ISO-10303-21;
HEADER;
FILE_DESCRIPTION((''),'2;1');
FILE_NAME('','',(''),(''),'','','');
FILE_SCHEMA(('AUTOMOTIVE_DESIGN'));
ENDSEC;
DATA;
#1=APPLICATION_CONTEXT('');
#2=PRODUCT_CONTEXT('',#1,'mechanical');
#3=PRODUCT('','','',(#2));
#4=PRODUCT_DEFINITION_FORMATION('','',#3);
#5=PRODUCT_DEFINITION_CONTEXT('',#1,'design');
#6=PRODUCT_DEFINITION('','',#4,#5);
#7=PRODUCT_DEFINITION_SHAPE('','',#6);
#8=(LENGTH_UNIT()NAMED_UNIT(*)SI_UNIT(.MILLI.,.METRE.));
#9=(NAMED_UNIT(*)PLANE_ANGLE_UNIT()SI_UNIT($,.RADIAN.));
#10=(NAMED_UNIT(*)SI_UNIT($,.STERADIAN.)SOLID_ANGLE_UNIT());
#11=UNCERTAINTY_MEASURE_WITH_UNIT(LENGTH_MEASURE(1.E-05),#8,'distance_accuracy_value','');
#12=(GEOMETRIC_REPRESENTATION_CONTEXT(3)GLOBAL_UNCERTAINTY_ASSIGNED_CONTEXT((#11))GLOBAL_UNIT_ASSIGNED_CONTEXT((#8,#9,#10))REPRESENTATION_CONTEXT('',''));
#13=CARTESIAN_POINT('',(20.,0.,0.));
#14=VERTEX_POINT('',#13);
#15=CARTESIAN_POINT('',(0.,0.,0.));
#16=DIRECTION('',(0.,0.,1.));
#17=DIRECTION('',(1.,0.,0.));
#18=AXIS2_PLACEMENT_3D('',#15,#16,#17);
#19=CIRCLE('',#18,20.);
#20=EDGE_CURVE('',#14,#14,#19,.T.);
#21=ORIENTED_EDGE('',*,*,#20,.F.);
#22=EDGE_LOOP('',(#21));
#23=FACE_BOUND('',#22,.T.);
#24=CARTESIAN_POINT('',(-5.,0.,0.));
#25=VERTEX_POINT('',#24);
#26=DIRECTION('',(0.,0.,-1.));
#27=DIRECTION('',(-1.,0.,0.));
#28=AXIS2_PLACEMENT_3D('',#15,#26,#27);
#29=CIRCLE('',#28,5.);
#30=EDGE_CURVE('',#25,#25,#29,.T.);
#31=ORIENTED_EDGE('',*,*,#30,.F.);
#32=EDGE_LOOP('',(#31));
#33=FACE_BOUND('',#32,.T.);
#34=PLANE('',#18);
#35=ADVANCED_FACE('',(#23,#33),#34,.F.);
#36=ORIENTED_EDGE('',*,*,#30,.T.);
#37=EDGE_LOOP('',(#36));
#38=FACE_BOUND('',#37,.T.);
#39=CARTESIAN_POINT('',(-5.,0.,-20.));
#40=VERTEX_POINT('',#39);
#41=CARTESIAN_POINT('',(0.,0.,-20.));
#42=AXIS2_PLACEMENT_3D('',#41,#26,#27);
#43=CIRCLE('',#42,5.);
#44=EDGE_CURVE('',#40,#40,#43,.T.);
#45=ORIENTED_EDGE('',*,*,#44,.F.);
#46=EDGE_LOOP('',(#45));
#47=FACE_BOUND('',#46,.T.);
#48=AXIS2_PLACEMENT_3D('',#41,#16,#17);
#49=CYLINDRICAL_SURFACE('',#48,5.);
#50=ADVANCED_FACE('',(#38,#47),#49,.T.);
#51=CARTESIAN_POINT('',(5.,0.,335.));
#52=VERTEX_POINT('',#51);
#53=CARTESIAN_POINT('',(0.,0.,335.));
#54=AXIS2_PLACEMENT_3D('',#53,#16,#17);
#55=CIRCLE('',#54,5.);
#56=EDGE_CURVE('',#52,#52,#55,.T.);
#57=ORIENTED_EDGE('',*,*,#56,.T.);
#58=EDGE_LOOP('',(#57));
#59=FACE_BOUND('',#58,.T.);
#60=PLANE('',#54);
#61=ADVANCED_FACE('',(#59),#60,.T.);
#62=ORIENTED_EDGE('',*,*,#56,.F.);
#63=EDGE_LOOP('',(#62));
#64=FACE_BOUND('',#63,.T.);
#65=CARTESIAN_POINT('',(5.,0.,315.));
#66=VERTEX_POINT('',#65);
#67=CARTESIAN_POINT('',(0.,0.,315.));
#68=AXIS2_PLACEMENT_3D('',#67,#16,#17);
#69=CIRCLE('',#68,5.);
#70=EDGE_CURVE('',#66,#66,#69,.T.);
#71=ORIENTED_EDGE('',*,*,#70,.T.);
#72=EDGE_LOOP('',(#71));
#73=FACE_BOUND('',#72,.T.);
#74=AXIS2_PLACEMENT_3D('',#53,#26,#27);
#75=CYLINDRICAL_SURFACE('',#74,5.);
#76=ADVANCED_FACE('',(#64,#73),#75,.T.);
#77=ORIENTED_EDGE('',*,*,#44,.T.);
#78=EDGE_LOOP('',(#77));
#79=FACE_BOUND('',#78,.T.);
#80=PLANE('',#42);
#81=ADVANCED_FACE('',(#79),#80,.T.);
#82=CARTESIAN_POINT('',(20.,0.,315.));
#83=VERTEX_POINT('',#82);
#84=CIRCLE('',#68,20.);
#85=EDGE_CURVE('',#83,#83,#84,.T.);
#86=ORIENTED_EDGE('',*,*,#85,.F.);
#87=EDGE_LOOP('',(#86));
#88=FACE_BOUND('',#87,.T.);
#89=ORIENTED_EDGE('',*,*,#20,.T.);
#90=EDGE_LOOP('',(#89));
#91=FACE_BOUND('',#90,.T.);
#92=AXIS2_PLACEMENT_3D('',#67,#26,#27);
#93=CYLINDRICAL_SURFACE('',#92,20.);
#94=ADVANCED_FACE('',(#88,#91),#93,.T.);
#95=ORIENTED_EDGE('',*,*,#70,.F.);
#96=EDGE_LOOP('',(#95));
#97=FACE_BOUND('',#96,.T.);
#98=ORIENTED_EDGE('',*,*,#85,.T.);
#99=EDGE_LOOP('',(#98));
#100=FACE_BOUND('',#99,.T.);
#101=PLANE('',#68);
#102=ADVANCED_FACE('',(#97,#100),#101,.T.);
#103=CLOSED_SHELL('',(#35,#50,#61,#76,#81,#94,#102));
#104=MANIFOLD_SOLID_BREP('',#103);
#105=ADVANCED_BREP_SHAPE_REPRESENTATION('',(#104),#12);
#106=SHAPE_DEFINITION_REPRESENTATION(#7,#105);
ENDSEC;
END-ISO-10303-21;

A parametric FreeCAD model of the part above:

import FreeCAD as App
import Part
import Sketcher

doc = App.newDocument("Part")
body = doc.addObject("PartDesign::Body", "Body")

# Sketch on XY plane
sketch1 = doc.addObject("Sketcher::SketchObject", "Sketch")
body.addObject(sketch1)
sketch1.AttachmentSupport = (doc.XY_Plane, [""])
sketch1.MapMode = "FlatFace"
sketch1.addGeometry(Part.Circle(App.Vector(0, 0, 0), App.Vector(0, 0, 1), 20), False)
sketch1.addConstraint(Sketcher.Constraint("Coincident", 0, 3, -1, 1))
sketch1.addConstraint(Sketcher.Constraint("Diameter", 0, 40.0))
pad1 = doc.addObject("PartDesign::Pad", "Pad")
body.addObject(pad1)
pad1.Profile = sketch1
pad1.Length = 315

# Sketch on XY plane
sketch2 = doc.addObject("Sketcher::SketchObject", "Sketch001")
body.addObject(sketch2)
sketch2.AttachmentSupport = (doc.XY_Plane, [""])
sketch2.MapMode = "FlatFace"
sketch2.AttachmentOffset = App.Placement(App.Vector(0, 0, 315), App.Rotation())
sketch2.addGeometry(Part.Circle(App.Vector(0, 0, 0), App.Vector(0, 0, 1), 5), False)
sketch2.addConstraint(Sketcher.Constraint("Coincident", 0, 3, -1, 1))
sketch2.addConstraint(Sketcher.Constraint("Diameter", 0, 10.0))
pad2 = doc.addObject("PartDesign::Pad", "Pad001")
body.addObject(pad2)
pad2.Profile = sketch2
pad2.Length = 20

# Sketch on XY plane
sketch3 = doc.addObject("Sketcher::SketchObject", "Sketch002")
body.addObject(sketch3)
sketch3.AttachmentSupport = (doc.XY_Plane, [""])
sketch3.MapMode = "FlatFace"
sketch3.addGeometry(Part.Circle(App.Vector(0, 0, 0), App.Vector(0, 0, 1), 5), False)
sketch3.addConstraint(Sketcher.Constraint("Coincident", 0, 3, -1, 1))
sketch3.addConstraint(Sketcher.Constraint("Diameter", 0, 10.0))
pad3 = doc.addObject("PartDesign::Pad", "Pad002")
body.addObject(pad3)
pad3.Profile = sketch3
pad3.Length = 20
pad3.Reversed = True

doc.recompute()
